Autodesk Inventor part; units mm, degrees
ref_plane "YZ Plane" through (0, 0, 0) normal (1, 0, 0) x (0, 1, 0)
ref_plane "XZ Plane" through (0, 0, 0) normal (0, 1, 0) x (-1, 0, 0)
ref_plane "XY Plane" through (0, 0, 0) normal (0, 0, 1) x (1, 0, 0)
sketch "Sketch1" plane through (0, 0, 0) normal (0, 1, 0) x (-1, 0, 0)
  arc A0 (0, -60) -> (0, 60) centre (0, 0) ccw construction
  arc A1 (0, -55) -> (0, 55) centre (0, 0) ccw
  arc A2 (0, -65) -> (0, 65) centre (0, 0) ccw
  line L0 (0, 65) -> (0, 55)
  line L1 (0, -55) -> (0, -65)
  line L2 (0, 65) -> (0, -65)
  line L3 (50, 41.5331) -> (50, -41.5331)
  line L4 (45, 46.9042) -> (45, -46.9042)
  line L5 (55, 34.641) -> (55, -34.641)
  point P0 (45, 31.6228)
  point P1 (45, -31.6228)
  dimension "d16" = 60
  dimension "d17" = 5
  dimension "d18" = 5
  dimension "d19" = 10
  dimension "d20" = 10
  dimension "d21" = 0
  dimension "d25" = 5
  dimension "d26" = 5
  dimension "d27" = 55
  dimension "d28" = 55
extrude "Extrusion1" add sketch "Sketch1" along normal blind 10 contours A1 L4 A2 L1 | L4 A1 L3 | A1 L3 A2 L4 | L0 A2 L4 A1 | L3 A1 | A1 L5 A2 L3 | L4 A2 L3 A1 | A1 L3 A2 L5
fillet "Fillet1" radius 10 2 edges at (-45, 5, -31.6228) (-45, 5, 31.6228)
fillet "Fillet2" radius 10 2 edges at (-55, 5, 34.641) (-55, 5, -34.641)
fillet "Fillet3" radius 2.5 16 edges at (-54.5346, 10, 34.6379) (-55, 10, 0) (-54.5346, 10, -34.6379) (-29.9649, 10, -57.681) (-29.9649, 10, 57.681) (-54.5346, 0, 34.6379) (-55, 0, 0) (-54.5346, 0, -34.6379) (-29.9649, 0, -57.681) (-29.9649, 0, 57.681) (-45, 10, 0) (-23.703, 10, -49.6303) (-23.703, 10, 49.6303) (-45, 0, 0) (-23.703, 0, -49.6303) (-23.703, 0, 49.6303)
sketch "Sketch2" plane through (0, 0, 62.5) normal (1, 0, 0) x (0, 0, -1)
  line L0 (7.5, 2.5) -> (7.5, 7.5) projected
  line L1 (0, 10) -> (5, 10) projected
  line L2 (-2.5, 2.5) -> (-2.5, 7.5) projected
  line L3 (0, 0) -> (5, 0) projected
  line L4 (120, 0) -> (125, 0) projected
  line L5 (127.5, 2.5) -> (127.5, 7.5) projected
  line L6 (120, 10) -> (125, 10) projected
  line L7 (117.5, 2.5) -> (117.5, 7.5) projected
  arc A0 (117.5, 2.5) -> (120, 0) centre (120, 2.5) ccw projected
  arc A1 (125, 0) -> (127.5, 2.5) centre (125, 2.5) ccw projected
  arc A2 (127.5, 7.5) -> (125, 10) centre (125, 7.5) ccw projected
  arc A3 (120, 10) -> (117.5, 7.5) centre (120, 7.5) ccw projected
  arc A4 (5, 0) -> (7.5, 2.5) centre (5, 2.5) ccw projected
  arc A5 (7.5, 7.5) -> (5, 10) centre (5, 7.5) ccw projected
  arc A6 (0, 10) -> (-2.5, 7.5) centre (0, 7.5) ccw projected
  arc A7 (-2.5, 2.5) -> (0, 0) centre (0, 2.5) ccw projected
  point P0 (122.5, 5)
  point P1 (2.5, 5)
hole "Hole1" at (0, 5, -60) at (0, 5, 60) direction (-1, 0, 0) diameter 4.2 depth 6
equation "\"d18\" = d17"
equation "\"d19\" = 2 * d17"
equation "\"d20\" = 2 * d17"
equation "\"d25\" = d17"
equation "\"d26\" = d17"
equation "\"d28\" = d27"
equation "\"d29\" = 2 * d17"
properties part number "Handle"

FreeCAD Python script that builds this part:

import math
import FreeCAD as App
import Part
import Sketcher

V = App.Vector


def edges_at(feature, points):
    """Names of the edges that pass closest to the given points."""
    edges = feature.Shape.Edges
    near = lambda p: min(range(len(edges)), key=lambda i: edges[i].distToShape(Part.Vertex(*p))[0])
    return sorted({f"Edge{near(p) + 1}" for p in points})

doc = App.newDocument("Part")
body = doc.addObject("PartDesign::Body", "Body")

# Sketch on XZ plane
sketch1 = doc.addObject("Sketcher::SketchObject", "Sketch")
body.addObject(sketch1)
sketch1.AttachmentSupport = (doc.XZ_Plane, [""])
sketch1.MapMode = "FlatFace"
sketch1.addGeometry([
    Part.ArcOfCircle(Part.Circle(V(0, 0, 0), V(0, 0, 1), 55), math.radians(-145), math.radians(-90)),  # 0
    Part.LineSegment(V(0, -55, 0), V(0, -65, 0)),  # 1
    Part.ArcOfCircle(Part.Circle(V(0, 0, 0), V(0, 0, 1), 65), math.radians(-148), math.radians(-90)),  # 2
    Part.LineSegment(V(-55, -35, 0), V(-55, 35, 0)),  # 3
    Part.ArcOfCircle(Part.Circle(V(0, 0, 0), V(0, 0, 1), 65), math.radians(90), math.radians(148)),  # 4
    Part.LineSegment(V(0, 65, 0), V(0, 55, 0)),  # 5
    Part.ArcOfCircle(Part.Circle(V(0, 0, 0), V(0, 0, 1), 55), math.radians(90), math.radians(145)),  # 6
    Part.LineSegment(V(-45, 32, 0), V(-45, -32, 0)),  # 7
], False)
sketch1.addConstraint([
    Sketcher.Constraint("Coincident", 0, 2, 1, 1),
    Sketcher.Constraint("Coincident", 1, 2, 2, 2),
    Sketcher.Constraint("Coincident", 2, 1, 3, 1),
    Sketcher.Constraint("Coincident", 3, 2, 4, 2),
    Sketcher.Constraint("Coincident", 4, 1, 5, 1),
    Sketcher.Constraint("Coincident", 5, 2, 6, 1),
    Sketcher.Constraint("Coincident", 6, 2, 7, 1),
    Sketcher.Constraint("Coincident", 7, 2, 0, 1),
    Sketcher.Constraint("Vertical", 1),
    Sketcher.Constraint("Vertical", 3),
    Sketcher.Constraint("Vertical", 5),
    Sketcher.Constraint("Vertical", 7),
    Sketcher.Constraint("Coincident", 0, 3, -1, 1),
    Sketcher.Constraint("Coincident", 2, 3, -1, 1),
    Sketcher.Constraint("Coincident", 4, 3, -1, 1),
    Sketcher.Constraint("Coincident", 6, 3, -1, 1),
    Sketcher.Constraint("Equal", 2, 4),
    Sketcher.Constraint("Equal", 0, 6),
    Sketcher.Constraint("PointOnObject", 0, 2, -2),
    Sketcher.Constraint("PointOnObject", 4, 1, -2),
    Sketcher.Constraint("Radius", 0, 55.0),
    Sketcher.Constraint("DistanceY", 1, 2, 1, 1, 10.0),
    Sketcher.Constraint("DistanceX", 2, 1, -1, 1, 55.0),
    Sketcher.Constraint("DistanceX", 3, 2, 6, 2, 10.0),
])
pad1 = doc.addObject("PartDesign::Pad", "Pad")
body.addObject(pad1)
pad1.Profile = sketch1
pad1.Length = 10
pad1.Reversed = True
doc.recompute()

fillet = doc.addObject("PartDesign::Fillet", "Fillet")
body.addObject(fillet)
fillet.Base = (pad1, edges_at(pad1, [(-45, 5, -31.623), (-45, 5, 31.623)]))
fillet.Radius = 10
doc.recompute()

fillet2 = doc.addObject("PartDesign::Fillet", "Fillet001")
body.addObject(fillet2)
fillet2.Base = (fillet, edges_at(fillet, [(-55, 5, 34.641), (-55, 5, -34.641)]))
fillet2.Radius = 10
doc.recompute()

fillet3 = doc.addObject("PartDesign::Fillet", "Fillet002")
body.addObject(fillet3)
fillet3.Base = (fillet2, edges_at(fillet2, [
    (-54.535, 10, 34.638),
    (-55, 10, 0),
    (-54.535, 10, -34.638),
    (-29.965, 10, -57.681),
    (-29.965, 10, 57.681),
    (-54.535, 0, 34.638),
    (-55, 0, 0),
    (-54.535, 0, -34.638),
    (-29.965, 0, -57.681),
    (-29.965, 0, 57.681),
    (-45, 10, 0),
    (-23.703, 10, -49.63),
    (-23.703, 10, 49.63),
    (-45, 0, 0),
    (-23.703, 0, -49.63),
    (-23.703, 0, 49.63),
]))
fillet3.Radius = 2.5

# Sketch on YZ plane
sketch2 = doc.addObject("Sketcher::SketchObject", "Sketch001")
body.addObject(sketch2)
sketch2.AttachmentSupport = (doc.YZ_Plane, [""])
sketch2.MapMode = "FlatFace"
sketch2.addGeometry([
    Part.Circle(V(5, -60, 0), V(0, 0, 1), 2.1),
    Part.Circle(V(5, 60, 0), V(0, 0, 1), 2.1),
], False)
sketch2.addConstraint([
    Sketcher.Constraint("Equal", 0, 1),
    Sketcher.Constraint("Symmetric", 0, 3, 1, 3, -1),
    Sketcher.Constraint("Diameter", 0, 4.2),
    Sketcher.Constraint("DistanceX", -1, 1, 0, 3, 5.0),
    Sketcher.Constraint("DistanceY", 0, 3, -1, 1, 60.0),
])
doc.recompute()
hole = doc.addObject("PartDesign::Hole", "Hole")
body.addObject(hole)
hole.Profile = sketch2
hole.ThreadType = "None"
hole.Diameter = 4.2
hole.DepthType = "Dimension"
hole.Depth = 6
hole.DrillPoint = "Flat"

doc.recompute()
